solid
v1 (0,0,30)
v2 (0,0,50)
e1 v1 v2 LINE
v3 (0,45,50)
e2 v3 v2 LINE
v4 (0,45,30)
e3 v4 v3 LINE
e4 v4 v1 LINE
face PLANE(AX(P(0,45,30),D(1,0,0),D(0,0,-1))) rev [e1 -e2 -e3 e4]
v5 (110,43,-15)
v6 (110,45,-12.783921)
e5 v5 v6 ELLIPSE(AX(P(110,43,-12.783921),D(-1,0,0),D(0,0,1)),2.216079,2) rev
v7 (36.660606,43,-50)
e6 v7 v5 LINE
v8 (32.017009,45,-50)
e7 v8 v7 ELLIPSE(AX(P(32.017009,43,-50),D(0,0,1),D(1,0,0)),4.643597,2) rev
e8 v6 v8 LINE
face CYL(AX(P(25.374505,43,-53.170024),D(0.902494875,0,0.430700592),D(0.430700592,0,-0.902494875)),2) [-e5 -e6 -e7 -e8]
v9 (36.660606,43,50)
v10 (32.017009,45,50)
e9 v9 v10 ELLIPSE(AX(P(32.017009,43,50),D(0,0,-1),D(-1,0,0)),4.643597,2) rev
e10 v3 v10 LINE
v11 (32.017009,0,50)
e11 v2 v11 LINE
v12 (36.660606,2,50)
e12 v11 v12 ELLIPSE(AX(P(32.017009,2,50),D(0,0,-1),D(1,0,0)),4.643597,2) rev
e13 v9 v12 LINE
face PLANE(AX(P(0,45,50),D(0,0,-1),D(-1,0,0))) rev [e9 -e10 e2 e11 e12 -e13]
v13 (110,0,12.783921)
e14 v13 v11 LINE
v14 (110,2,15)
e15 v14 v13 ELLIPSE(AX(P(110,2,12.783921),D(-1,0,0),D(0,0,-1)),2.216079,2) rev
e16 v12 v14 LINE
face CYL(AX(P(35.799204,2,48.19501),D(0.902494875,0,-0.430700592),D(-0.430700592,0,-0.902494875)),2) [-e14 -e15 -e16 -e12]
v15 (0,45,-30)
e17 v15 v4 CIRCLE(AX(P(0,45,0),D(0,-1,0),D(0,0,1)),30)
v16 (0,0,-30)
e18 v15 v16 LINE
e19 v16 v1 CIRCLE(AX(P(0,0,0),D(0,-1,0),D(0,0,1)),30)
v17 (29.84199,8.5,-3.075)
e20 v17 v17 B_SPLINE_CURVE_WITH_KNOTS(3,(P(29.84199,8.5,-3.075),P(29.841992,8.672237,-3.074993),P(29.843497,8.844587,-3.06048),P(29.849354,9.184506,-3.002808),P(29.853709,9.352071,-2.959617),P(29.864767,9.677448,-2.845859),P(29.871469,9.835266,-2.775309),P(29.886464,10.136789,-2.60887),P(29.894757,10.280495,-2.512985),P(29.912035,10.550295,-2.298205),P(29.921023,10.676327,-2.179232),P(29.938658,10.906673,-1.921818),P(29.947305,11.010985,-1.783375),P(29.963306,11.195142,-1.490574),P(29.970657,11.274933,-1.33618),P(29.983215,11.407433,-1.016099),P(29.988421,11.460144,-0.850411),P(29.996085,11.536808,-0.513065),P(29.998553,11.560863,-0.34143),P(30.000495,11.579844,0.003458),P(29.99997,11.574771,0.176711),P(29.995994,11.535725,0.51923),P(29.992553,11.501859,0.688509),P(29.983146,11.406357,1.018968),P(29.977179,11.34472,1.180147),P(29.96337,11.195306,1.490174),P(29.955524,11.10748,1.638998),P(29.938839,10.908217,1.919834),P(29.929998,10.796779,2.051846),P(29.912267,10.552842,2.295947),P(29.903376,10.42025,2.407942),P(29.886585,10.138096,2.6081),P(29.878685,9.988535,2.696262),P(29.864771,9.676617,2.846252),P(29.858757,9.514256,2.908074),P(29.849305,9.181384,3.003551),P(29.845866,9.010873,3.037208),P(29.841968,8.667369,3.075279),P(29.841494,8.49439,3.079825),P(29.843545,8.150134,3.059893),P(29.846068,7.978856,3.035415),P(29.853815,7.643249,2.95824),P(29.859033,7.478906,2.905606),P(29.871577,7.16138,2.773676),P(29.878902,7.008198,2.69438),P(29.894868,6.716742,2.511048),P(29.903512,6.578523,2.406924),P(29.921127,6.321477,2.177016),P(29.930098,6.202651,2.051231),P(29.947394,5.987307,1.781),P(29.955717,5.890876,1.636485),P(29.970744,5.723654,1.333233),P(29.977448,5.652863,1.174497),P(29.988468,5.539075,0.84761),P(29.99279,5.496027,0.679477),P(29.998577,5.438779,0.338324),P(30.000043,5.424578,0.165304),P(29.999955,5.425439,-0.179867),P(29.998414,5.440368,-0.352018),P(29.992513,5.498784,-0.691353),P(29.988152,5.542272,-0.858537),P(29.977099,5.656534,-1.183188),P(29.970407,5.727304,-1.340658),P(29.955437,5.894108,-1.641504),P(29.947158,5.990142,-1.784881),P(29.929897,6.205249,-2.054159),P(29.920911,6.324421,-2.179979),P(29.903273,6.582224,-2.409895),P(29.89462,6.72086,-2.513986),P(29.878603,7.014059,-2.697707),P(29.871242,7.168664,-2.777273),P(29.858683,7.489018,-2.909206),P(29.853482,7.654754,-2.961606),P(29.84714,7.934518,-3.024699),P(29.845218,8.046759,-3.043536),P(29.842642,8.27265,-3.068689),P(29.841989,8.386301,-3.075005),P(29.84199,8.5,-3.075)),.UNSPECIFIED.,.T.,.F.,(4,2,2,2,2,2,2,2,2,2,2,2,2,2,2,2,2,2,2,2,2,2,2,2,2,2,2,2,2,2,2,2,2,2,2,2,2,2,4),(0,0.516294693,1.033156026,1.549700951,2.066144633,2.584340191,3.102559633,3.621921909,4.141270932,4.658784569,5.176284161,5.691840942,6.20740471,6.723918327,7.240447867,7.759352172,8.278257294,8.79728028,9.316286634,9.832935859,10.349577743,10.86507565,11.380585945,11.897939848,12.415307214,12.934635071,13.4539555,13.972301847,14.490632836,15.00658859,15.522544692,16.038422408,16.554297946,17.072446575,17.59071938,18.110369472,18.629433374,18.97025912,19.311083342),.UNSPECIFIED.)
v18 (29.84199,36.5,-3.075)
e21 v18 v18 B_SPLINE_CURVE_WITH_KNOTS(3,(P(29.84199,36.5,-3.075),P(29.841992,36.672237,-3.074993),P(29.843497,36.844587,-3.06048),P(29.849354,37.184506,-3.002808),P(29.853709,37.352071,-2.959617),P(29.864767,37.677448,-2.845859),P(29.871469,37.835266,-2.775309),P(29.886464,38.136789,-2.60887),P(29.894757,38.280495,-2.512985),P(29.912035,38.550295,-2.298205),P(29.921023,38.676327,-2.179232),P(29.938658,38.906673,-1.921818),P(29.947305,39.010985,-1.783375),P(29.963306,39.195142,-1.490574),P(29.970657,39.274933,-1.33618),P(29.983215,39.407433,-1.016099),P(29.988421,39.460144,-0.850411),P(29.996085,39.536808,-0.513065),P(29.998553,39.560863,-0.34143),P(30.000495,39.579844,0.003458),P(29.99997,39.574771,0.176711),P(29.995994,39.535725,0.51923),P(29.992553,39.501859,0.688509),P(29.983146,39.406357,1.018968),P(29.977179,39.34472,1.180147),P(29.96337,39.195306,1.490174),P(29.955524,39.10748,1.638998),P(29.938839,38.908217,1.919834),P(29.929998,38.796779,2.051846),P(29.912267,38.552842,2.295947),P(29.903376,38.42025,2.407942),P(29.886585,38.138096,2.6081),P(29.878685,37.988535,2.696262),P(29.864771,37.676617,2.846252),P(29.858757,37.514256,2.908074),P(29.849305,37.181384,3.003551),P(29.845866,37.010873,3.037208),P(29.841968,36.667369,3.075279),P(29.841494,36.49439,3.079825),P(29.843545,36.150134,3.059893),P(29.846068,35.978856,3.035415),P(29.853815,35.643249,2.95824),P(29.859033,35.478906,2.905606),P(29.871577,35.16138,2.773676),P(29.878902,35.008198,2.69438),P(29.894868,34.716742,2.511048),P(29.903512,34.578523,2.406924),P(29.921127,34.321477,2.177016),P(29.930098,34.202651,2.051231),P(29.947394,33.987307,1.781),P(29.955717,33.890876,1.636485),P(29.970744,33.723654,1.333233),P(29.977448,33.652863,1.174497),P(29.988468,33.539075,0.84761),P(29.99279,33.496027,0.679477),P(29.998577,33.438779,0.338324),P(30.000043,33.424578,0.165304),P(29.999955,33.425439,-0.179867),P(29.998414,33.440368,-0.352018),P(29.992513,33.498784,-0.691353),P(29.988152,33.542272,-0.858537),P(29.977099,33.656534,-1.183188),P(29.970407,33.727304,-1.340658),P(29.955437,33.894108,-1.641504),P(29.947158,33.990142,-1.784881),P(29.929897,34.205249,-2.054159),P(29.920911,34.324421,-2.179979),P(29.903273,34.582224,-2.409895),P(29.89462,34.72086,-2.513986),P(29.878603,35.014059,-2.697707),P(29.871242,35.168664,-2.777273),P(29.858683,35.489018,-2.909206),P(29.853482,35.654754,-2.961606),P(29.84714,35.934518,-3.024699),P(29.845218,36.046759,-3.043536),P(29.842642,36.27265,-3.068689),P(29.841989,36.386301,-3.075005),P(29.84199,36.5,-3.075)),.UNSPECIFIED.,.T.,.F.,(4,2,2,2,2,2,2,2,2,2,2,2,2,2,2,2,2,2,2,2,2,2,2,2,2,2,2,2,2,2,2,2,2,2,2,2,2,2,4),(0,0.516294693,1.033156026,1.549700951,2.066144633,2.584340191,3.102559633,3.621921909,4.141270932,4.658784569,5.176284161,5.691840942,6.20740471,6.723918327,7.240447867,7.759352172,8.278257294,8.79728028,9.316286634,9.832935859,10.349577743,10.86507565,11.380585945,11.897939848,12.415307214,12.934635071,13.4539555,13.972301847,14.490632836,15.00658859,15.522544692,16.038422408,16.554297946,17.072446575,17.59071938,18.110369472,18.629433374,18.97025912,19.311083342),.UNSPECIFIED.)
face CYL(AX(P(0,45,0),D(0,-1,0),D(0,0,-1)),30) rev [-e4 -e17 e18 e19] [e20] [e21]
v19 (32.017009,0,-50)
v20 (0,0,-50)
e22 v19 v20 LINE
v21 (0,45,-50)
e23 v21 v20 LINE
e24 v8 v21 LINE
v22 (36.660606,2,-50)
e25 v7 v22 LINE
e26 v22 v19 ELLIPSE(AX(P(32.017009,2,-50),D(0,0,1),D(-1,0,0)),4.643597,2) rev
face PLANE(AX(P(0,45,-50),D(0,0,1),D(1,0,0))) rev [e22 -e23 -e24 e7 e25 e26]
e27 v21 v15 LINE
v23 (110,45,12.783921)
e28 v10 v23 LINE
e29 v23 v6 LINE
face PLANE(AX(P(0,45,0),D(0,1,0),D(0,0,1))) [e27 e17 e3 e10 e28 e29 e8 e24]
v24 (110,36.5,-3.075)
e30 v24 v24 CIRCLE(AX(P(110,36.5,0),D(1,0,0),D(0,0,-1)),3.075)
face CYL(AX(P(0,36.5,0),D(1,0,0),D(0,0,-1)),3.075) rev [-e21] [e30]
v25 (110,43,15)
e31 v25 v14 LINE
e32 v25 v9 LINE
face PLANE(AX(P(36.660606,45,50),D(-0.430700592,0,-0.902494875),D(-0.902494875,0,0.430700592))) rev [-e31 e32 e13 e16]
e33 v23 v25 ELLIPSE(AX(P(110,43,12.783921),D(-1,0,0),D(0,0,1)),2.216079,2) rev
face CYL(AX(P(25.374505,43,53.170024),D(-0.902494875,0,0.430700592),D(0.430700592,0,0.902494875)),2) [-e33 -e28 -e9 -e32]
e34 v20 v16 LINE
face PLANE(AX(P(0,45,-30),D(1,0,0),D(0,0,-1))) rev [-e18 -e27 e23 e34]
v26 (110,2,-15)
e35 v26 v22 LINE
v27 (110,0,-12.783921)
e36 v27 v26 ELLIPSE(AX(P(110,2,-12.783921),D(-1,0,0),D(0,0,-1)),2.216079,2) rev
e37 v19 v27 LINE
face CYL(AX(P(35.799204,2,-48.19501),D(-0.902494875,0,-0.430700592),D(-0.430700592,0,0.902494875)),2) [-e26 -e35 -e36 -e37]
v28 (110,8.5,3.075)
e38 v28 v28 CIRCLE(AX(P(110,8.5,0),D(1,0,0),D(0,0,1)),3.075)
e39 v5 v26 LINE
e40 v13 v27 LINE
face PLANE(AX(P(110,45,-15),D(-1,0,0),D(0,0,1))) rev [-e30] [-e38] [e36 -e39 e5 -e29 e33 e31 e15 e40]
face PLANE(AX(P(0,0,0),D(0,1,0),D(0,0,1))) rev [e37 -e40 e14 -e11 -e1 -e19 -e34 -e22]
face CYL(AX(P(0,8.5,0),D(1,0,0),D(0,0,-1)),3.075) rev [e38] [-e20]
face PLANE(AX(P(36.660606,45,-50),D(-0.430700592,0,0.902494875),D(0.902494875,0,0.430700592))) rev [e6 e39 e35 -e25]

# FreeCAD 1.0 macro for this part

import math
import FreeCAD as App
import Part
import Sketcher

V = App.Vector
Q = App.Units.Quantity


def edges_at(feature, points):
    """Names of the edges that pass closest to the given points."""
    edges = feature.Shape.Edges
    near = lambda p: min(range(len(edges)), key=lambda i: edges[i].distToShape(Part.Vertex(*p))[0])
    return sorted({f"Edge{near(p) + 1}" for p in points})

doc = App.newDocument("Part")
params = doc.addObject("Spreadsheet::Sheet", "Params")
for row, (alias, value) in enumerate([
    ("sketch1_radius", "30 mm"),
    ("sketch1_height", "20 mm"),
    ("sketch1_height2", "30 mm"),
    ("pad1_length", "45 mm"),
    ("sketch2_diameter", "6.15 mm"),
    ("fillet_radius", "2 mm"),
], start=1):
    params.set(f"A{row}", alias)
    params.set(f"B{row}", "=" + value)
    params.setAlias(f"B{row}", alias)

body = doc.addObject("PartDesign::Body", "Body")

# Sketch on XZ plane
sketch1 = doc.addObject("Sketcher::SketchObject", "Sketch")
body.addObject(sketch1)
sketch1.AttachmentSupport = (doc.XZ_Plane, [""])
sketch1.MapMode = "FlatFace"
sketch1.addGeometry([
    Part.LineSegment(V(0, -50, 0), V(0, -30, 0)),  # 0
    Part.ArcOfCircle(Part.Circle(V(0, 0, 0), V(0, 0, 1), 30), math.radians(-90), math.radians(90)),  # 1
    Part.LineSegment(V(0, 30, 0), V(0, 50, 0)),  # 2
    Part.LineSegment(V(0, 50, 0), V(36.660606, 50, 0)),  # 3
    Part.LineSegment(V(36.660606, 50, 0), V(110, 15, 0)),  # 4
    Part.LineSegment(V(110, 15, 0), V(110, -15, 0)),  # 5
    Part.LineSegment(V(110, -15, 0), V(36.660606, -50, 0)),  # 6
    Part.LineSegment(V(36.660606, -50, 0), V(0, -50, 0)),  # 7
], False)
sketch1.addConstraint([
    Sketcher.Constraint("Coincident", 0, 2, 1, 1),
    Sketcher.Constraint("Coincident", 1, 2, 2, 1),
    Sketcher.Constraint("Coincident", 2, 2, 3, 1),
    Sketcher.Constraint("Coincident", 3, 2, 4, 1),
    Sketcher.Constraint("Coincident", 4, 2, 5, 1),
    Sketcher.Constraint("Coincident", 5, 2, 6, 1),
    Sketcher.Constraint("Coincident", 6, 2, 7, 1),
    Sketcher.Constraint("Coincident", 7, 2, 0, 1),
    Sketcher.Constraint("Vertical", 0),
    Sketcher.Constraint("Vertical", 2),
    Sketcher.Constraint("Horizontal", 3),
    Sketcher.Constraint("Vertical", 5),
    Sketcher.Constraint("Horizontal", 7),
    Sketcher.Constraint("Coincident", 1, 3, -1, 1),
    Sketcher.Constraint("Symmetric", 2, 2, 7, 2, -1, 1),
    Sketcher.Constraint("PointOnObject", 0, 2, -2),
    Sketcher.Constraint("Vertical", 3, 2, 6, 2),
    Sketcher.Constraint("Equal", 4, 6),
    Sketcher.Constraint("Radius", 1, Q("30 mm")),
    Sketcher.Constraint("DistanceY", 0, 1, 0, 2, Q("20 mm")),
    Sketcher.Constraint("DistanceY", 5, 2, 5, 1, Q("30 mm")),
    Sketcher.Constraint("DistanceX", -1, 1, 4, 2, Q("110 mm")),
    Sketcher.Constraint("Distance", 4, Q("81.262948 mm")),
])
sketch1.setExpression("Constraints[18]", "Params.sketch1_radius")
sketch1.setExpression("Constraints[19]", "Params.sketch1_height")
sketch1.setExpression("Constraints[20]", "Params.sketch1_height2")
pad1 = doc.addObject("PartDesign::Pad", "Pad")
body.addObject(pad1)
pad1.Profile = sketch1
pad1.setExpression("Length", "Params.pad1_length")
pad1.Reversed = True

# Sketch on YZ plane
sketch2 = doc.addObject("Sketcher::SketchObject", "Sketch001")
body.addObject(sketch2)
sketch2.AttachmentSupport = (doc.YZ_Plane, [""])
sketch2.MapMode = "FlatFace"
sketch2.AttachmentOffset = App.Placement(V(0, 0, 110), App.Rotation())
sketch2.addGeometry([
    Part.Circle(V(36.5, 0, 0), V(0, 0, 1), 3.075),
    Part.Circle(V(8.5, 0, 0), V(0, 0, 1), 3.075),
], False)
sketch2.addConstraint([
    Sketcher.Constraint("Equal", 0, 1),
    Sketcher.Constraint("PointOnObject", 0, 3, -1),
    Sketcher.Constraint("PointOnObject", 1, 3, -1),
    Sketcher.Constraint("Diameter", 0, Q("6.15 mm")),
    Sketcher.Constraint("DistanceX", 1, 3, 0, 3, Q("28 mm")),
    Sketcher.Constraint("DistanceX", -1, 1, 0, 3, Q("36.5 mm")),
])
sketch2.setExpression("Constraints[3]", "Params.sketch2_diameter")
pocket1 = doc.addObject("PartDesign::Pocket", "Pocket")
body.addObject(pocket1)
pocket1.Profile = sketch2
pocket1.Type = "ThroughAll"
doc.recompute()

fillet = doc.addObject("PartDesign::Fillet", "Fillet")
body.addObject(fillet)
fillet.Base = (pocket1, edges_at(pocket1, [
    (73.33, 0, 32.5),
    (73.33, 45, 32.5),
    (73.33, 45, -32.5),
    (73.33, 0, -32.5),
]))
fillet.setExpression("Radius", "Params.fillet_radius")

doc.recompute()
